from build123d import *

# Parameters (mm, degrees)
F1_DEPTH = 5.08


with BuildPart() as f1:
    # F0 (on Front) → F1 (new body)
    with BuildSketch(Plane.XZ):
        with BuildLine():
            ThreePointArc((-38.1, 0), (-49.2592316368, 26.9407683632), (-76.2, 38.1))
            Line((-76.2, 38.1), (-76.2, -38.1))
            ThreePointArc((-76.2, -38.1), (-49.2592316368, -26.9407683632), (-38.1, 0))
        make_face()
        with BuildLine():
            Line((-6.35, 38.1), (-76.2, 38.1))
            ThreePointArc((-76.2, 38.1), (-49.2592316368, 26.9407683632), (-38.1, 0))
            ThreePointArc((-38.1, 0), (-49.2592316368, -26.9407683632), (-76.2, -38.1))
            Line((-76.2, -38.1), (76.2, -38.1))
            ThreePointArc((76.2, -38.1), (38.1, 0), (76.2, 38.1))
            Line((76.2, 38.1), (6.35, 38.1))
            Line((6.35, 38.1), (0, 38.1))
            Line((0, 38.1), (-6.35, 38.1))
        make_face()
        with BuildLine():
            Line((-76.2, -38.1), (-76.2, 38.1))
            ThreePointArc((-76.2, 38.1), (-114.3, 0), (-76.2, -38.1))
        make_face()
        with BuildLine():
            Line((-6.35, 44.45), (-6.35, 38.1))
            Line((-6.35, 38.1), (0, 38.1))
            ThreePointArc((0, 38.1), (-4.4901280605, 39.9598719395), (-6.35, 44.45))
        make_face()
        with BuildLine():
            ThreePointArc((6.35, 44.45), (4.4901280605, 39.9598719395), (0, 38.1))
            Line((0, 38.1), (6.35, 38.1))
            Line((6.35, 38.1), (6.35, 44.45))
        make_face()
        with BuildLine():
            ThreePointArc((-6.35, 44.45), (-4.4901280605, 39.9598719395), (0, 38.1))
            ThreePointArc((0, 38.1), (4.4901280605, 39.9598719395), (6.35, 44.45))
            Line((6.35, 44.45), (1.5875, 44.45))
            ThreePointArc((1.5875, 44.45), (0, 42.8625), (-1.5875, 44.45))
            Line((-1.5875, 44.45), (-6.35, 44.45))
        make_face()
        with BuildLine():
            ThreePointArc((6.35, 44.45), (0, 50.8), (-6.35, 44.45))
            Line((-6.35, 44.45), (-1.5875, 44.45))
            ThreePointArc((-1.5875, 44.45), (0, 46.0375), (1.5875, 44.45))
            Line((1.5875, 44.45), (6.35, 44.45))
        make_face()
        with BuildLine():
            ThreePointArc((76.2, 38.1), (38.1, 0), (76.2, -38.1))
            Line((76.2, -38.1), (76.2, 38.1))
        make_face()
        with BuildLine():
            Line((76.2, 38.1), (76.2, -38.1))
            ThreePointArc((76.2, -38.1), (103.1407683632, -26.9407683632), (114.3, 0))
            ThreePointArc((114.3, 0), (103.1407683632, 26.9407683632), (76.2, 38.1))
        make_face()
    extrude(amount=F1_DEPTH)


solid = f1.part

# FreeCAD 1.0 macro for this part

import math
import FreeCAD as App
import Part
import Sketcher

V = App.Vector
Q = App.Units.Quantity

doc = App.newDocument("Part")
body = doc.addObject("PartDesign::Body", "Body")

sketch1 = body.newObject("Sketcher::SketchObject", "Sketch")
sketch1.AttachmentSupport = (doc.getObject("XZ_Plane"), [""])
sketch1.MapMode = "FlatFace"
sketch1.addGeometry(Part.LineSegment(V(-76.2, -38.1, 0), V(76.2, -38.1, 0)), False)
sketch1.addGeometry(Part.ArcOfCircle(Part.Circle(V(76.2, 0, 0), V(0, 0, 1), 38.1), math.radians(-90), math.radians(0)), False)
sketch1.addGeometry(Part.ArcOfCircle(Part.Circle(V(76.2, 0, 0), V(0, 0, 1), 38.1), math.radians(0), math.radians(90)), False)
sketch1.addGeometry(Part.LineSegment(V(76.2, 38.1, 0), V(6.35, 38.1, 0)), False)
sketch1.addGeometry(Part.LineSegment(V(6.35, 38.1, 0), V(6.35, 44.45, 0)), False)
sketch1.addGeometry(Part.ArcOfCircle(Part.Circle(V(0, 44.45, 0), V(0, 0, 1), 6.35), math.radians(0), math.radians(180)), False)
sketch1.addGeometry(Part.LineSegment(V(-6.35, 44.45, 0), V(-6.35, 38.1, 0)), False)
sketch1.addGeometry(Part.LineSegment(V(-6.35, 38.1, 0), V(-76.2, 38.1, 0)), False)
sketch1.addGeometry(Part.ArcOfCircle(Part.Circle(V(-76.2, 0, 0), V(0, 0, 1), 38.1), math.radians(90), math.radians(270)), False)
sketch1.addGeometry(Part.Circle(V(0, 44.45, 0), V(0, 0, 1), 1.5875), False)
sketch1.addConstraint(Sketcher.Constraint("Tangent", 0, 2, 1, 1))
sketch1.addConstraint(Sketcher.Constraint("Tangent", 1, 2, 2, 1))
sketch1.addConstraint(Sketcher.Constraint("Tangent", 2, 2, 3, 1))
sketch1.addConstraint(Sketcher.Constraint("Coincident", 3, 2, 4, 1))
sketch1.addConstraint(Sketcher.Constraint("Tangent", 4, 2, 5, 1))
sketch1.addConstraint(Sketcher.Constraint("Tangent", 5, 2, 6, 1))
sketch1.addConstraint(Sketcher.Constraint("Coincident", 6, 2, 7, 1))
sketch1.addConstraint(Sketcher.Constraint("Tangent", 7, 2, 8, 1))
sketch1.addConstraint(Sketcher.Constraint("Tangent", 8, 2, 0, 1))
sketch1.addConstraint(Sketcher.Constraint("Horizontal", 0))
sketch1.addConstraint(Sketcher.Constraint("Horizontal", 3))
sketch1.addConstraint(Sketcher.Constraint("Vertical", 4))
sketch1.addConstraint(Sketcher.Constraint("Vertical", 6))
sketch1.addConstraint(Sketcher.Constraint("Horizontal", 7))
sketch1.addConstraint(Sketcher.Constraint("Coincident", 9, 3, 5, 3))
sketch1.addConstraint(Sketcher.Constraint("Equal", 1, 2))
sketch1.addConstraint(Sketcher.Constraint("Equal", 2, 8))
sketch1.addConstraint(Sketcher.Constraint("Symmetric", 1, 3, 8, 3, -1, 1))
sketch1.addConstraint(Sketcher.Constraint("PointOnObject", 5, 3, -2))
sketch1.addConstraint(Sketcher.Constraint("PointOnObject", 1, 2, -1))
sketch1.addConstraint(Sketcher.Constraint("Radius", 1, Q("1.5 in")))
sketch1.addConstraint(Sketcher.Constraint("DistanceX", 0, 1, 0, 2, Q("6 in")))
sketch1.addConstraint(Sketcher.Constraint("Radius", 5, Q("0.25 in")))
sketch1.addConstraint(Sketcher.Constraint("Diameter", 9, Q("0.125 in")))
sketch1.addConstraint(Sketcher.Constraint("DistanceY", 4, 1, 4, 2, Q("0.25 in")))
pad1 = body.newObject("PartDesign::Pad", "Pad")
pad1.Profile = sketch1
pad1.Length = Q("0.2 in")

doc.recompute()
